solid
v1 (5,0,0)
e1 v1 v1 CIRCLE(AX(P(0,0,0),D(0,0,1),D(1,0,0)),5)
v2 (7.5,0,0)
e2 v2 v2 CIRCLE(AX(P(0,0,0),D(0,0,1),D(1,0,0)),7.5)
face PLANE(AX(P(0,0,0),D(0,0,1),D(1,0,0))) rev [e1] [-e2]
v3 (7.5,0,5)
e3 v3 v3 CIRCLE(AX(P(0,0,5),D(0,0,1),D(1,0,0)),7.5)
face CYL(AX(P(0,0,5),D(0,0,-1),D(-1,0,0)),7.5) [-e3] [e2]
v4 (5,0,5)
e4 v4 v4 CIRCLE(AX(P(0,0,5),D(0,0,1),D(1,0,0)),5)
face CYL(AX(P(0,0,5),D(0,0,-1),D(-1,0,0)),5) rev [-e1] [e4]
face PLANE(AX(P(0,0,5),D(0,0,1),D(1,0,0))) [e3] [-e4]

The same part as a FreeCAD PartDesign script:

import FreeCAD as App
import Part
import Sketcher

doc = App.newDocument("Part")
body = doc.addObject("PartDesign::Body", "Body")

sketch1 = body.newObject("Sketcher::SketchObject", "Sketch")
sketch1.AttachmentSupport = (doc.getObject("XY_Plane"), [""])
sketch1.MapMode = "FlatFace"
sketch1.addGeometry([
    Part.Circle(App.Vector(0, 0, 0), App.Vector(0, 0, 1), 8),
    Part.Circle(App.Vector(0, 0, 0), App.Vector(0, 0, 1), 5),
], False)
sketch1.addConstraint([
    Sketcher.Constraint("Coincident", 0, 3, -1, 1),
    Sketcher.Constraint("Coincident", 1, 3, -1, 1),
    Sketcher.Constraint("Diameter", 0, 15.0),
    Sketcher.Constraint("Diameter", 1, 10.0),
])
pad1 = body.newObject("PartDesign::Pad", "Pad")
pad1.Profile = sketch1
pad1.Length = 5

doc.recompute()
